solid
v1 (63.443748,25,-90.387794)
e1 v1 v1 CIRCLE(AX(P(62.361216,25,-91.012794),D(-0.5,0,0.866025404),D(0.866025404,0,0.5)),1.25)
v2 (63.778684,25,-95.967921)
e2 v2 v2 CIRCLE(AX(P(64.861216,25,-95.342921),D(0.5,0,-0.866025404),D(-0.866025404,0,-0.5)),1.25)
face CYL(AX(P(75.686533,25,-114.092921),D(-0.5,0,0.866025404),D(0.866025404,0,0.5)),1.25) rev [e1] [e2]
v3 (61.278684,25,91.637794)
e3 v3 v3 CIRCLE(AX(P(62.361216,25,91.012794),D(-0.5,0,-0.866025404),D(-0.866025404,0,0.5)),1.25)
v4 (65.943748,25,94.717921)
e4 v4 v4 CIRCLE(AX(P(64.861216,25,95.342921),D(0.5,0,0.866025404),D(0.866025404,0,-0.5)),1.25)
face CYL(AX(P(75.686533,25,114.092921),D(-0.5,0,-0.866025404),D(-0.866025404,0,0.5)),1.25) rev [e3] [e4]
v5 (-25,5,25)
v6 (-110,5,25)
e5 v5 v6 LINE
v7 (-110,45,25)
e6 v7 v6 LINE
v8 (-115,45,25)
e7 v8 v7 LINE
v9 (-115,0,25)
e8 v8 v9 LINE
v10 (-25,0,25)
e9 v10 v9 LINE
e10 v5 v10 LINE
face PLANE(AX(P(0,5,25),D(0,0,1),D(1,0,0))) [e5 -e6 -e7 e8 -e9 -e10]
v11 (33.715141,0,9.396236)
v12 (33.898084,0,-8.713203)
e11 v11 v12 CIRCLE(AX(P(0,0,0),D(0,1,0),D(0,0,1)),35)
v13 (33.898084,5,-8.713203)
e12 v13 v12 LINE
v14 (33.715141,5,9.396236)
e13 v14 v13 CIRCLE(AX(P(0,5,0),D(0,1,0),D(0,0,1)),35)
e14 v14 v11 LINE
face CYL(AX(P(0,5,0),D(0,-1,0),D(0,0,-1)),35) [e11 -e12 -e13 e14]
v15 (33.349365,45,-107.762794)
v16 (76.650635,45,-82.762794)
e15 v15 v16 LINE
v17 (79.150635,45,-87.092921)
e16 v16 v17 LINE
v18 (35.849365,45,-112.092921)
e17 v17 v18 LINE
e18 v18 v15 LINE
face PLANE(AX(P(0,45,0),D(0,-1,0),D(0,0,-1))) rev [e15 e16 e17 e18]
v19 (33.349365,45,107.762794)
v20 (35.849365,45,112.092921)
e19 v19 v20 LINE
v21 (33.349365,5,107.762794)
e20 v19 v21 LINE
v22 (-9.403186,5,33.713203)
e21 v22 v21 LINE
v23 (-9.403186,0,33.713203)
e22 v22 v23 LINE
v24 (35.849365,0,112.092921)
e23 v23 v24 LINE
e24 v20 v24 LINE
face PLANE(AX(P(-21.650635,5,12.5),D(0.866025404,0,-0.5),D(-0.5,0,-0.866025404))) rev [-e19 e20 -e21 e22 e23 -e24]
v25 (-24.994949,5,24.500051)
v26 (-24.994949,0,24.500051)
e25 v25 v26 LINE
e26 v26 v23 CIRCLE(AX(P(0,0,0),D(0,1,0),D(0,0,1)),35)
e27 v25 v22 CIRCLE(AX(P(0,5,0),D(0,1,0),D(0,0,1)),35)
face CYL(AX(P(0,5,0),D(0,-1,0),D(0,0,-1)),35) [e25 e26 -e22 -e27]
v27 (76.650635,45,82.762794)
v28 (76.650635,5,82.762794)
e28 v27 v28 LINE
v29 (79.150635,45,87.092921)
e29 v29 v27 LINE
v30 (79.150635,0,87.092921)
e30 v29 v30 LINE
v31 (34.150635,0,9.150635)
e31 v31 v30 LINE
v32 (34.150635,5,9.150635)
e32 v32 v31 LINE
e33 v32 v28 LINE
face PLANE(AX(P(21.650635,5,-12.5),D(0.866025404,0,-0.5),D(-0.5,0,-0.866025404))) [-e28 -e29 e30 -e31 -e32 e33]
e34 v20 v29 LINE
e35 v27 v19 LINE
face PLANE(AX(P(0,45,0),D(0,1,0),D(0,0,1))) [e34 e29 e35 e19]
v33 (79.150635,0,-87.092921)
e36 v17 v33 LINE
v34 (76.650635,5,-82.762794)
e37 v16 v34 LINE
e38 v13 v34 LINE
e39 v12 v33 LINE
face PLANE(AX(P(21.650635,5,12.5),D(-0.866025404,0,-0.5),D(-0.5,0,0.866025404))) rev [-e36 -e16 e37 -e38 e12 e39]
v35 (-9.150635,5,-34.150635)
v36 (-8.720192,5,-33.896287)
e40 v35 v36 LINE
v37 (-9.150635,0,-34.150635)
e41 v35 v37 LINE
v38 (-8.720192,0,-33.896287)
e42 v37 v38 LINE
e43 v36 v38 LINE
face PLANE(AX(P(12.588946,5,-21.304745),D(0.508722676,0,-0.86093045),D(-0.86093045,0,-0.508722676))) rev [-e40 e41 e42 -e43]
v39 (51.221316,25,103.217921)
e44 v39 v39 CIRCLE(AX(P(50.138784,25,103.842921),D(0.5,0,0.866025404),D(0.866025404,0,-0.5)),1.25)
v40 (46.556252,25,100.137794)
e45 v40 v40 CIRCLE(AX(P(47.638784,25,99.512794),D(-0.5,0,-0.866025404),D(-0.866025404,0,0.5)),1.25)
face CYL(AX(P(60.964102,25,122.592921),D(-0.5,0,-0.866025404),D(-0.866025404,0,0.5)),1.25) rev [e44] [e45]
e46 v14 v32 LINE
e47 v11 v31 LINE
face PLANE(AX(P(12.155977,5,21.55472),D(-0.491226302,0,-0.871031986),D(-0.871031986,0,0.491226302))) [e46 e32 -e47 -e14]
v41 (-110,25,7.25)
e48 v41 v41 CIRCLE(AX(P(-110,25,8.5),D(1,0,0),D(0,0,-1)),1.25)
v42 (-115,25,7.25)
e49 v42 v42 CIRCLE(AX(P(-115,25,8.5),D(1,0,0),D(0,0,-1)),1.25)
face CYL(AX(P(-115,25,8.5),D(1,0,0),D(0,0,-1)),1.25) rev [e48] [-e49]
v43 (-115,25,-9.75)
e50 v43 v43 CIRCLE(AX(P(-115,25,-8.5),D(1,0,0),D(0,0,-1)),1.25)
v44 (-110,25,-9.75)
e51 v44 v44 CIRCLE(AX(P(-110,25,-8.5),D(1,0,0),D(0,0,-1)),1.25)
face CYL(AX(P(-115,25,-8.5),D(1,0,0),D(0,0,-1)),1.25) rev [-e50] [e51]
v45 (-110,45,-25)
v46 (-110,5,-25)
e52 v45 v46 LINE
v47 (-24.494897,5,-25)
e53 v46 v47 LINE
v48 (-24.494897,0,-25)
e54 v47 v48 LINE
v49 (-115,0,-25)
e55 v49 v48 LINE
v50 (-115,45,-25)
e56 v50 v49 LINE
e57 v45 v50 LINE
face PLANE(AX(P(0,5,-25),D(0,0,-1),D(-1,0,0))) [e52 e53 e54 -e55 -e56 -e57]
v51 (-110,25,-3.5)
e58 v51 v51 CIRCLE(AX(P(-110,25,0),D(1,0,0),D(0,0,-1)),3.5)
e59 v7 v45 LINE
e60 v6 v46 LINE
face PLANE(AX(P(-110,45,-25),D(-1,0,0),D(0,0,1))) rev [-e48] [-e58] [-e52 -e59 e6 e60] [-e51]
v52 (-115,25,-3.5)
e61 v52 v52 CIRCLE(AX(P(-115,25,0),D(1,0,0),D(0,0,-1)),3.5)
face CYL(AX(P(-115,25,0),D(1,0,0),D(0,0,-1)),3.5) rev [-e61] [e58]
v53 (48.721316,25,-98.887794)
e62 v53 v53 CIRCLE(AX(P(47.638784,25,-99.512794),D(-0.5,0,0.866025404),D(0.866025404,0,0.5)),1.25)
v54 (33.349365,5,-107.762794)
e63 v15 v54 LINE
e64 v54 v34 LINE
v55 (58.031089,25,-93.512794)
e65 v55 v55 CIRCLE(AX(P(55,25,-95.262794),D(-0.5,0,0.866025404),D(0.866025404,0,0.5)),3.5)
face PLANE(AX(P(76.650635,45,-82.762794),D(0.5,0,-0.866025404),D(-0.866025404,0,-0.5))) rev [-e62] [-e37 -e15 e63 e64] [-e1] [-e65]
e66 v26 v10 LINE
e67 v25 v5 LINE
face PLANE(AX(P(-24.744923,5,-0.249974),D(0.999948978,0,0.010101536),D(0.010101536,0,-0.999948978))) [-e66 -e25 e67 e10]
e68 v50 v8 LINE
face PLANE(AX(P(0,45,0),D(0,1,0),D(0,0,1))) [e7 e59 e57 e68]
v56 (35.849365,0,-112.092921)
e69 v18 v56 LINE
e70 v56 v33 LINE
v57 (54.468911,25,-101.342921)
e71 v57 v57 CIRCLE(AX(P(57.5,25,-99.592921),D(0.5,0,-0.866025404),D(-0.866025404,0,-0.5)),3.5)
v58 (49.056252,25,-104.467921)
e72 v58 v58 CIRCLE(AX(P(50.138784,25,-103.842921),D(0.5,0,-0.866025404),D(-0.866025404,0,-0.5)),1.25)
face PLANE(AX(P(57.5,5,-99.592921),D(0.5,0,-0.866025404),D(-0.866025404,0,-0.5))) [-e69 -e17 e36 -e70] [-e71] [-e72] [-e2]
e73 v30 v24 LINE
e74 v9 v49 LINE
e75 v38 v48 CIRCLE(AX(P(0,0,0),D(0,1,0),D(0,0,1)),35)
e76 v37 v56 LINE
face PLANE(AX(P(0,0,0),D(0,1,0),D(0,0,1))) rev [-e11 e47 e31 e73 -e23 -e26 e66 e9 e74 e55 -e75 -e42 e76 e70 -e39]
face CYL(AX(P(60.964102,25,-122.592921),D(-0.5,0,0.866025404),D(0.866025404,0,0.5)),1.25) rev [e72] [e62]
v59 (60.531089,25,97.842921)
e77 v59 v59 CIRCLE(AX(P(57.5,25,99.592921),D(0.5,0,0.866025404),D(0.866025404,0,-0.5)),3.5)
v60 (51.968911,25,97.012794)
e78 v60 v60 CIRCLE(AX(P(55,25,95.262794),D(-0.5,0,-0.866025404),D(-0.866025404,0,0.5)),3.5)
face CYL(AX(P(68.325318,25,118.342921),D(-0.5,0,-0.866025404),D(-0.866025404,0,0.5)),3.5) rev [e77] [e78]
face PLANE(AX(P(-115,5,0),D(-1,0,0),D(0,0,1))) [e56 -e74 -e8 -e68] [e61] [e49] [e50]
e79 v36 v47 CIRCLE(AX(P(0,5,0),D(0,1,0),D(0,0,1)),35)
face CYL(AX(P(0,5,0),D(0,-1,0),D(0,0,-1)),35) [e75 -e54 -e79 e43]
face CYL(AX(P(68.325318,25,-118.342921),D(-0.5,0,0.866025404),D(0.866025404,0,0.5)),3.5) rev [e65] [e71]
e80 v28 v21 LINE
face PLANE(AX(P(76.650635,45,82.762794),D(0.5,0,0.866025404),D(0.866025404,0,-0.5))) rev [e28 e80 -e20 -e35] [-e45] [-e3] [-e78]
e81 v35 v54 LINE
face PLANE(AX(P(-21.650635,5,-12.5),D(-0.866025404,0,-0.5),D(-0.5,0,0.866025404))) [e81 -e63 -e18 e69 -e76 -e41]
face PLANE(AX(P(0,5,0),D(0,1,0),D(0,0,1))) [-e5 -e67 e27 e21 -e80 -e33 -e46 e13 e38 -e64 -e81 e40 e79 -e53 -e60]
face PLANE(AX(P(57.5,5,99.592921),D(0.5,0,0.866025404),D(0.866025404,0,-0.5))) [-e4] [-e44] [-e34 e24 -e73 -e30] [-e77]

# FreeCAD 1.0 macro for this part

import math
import FreeCAD as App
import Part
import Sketcher
from FreeCAD import Vector
Q = App.Units.Quantity


def add_polygon(sketch, points):
    """Adds a closed chain of lines whose ends are joined by coincident constraints."""
    first, n = sketch.GeometryCount, len(points)
    for a, b in zip(points, points[1:] + points[:1]):
        sketch.addGeometry(Part.LineSegment(App.Vector(*a, 0), App.Vector(*b, 0)), False)
    for i in range(n):
        sketch.addConstraint(Sketcher.Constraint("Coincident", first + i, 2, first + (i + 1) % n, 1))

doc = App.newDocument("Part")
body = doc.addObject("PartDesign::Body", "Body")

# Sketch on XZ plane
sketch1 = doc.addObject("Sketcher::SketchObject", "Sketch")
body.addObject(sketch1)
sketch1.AttachmentSupport = (doc.XZ_Plane, [""])
sketch1.MapMode = "FlatFace"
sketch1.addGeometry(Part.LineSegment(Vector(-115, -25, 0), Vector(-115, 25, 0)), False)
sketch1.addGeometry(Part.LineSegment(Vector(-115, 25, 0), Vector(-25, 25, 0)), False)
sketch1.addGeometry(Part.LineSegment(Vector(-25, 25, 0), Vector(-24.99, 24.5, 0)), False)
sketch1.addGeometry(Part.ArcOfCircle(Part.Circle(Vector(0, 0, 0), Vector(0, 0, 1), 35), math.radians(106), math.radians(136)), False)
sketch1.addGeometry(Part.LineSegment(Vector(-9.4, 33.71, 0), Vector(35.85, 112.09, 0)), False)
sketch1.addGeometry(Part.LineSegment(Vector(35.85, 112.09, 0), Vector(79.15, 87.09, 0)), False)
sketch1.addGeometry(Part.LineSegment(Vector(79.15, 87.09, 0), Vector(34.15, 9.15, 0)), False)
sketch1.addGeometry(Part.LineSegment(Vector(34.15, 9.15, 0), Vector(33.72, 9.4, 0)), False)
sketch1.addGeometry(Part.ArcOfCircle(Part.Circle(Vector(0, 0, 0), Vector(0, 0, 1), 35), math.radians(0), math.radians(15.57)), False)
sketch1.addGeometry(Part.ArcOfCircle(Part.Circle(Vector(0, 0, 0), Vector(0, 0, 1), 35), math.radians(-14.42), math.radians(0)), False)
sketch1.addGeometry(Part.LineSegment(Vector(33.9, -8.71, 0), Vector(79.15, -87.09, 0)), False)
sketch1.addGeometry(Part.LineSegment(Vector(79.15, -87.09, 0), Vector(35.85, -112.09, 0)), False)
sketch1.addGeometry(Part.LineSegment(Vector(35.85, -112.09, 0), Vector(-9.15, -34.15, 0)), False)
sketch1.addGeometry(Part.LineSegment(Vector(-9.15, -34.15, 0), Vector(-8.72, -33.9, 0)), False)
sketch1.addGeometry(Part.ArcOfCircle(Part.Circle(Vector(0, 0, 0), Vector(0, 0, 1), 35), math.radians(-134), math.radians(-104)), False)
sketch1.addGeometry(Part.LineSegment(Vector(-24.49, -25, 0), Vector(-115, -25, 0)), False)
sketch1.addConstraint(Sketcher.Constraint("Coincident", 0, 2, 1, 1))
sketch1.addConstraint(Sketcher.Constraint("Coincident", 1, 2, 2, 1))
sketch1.addConstraint(Sketcher.Constraint("Coincident", 2, 2, 3, 2))
sketch1.addConstraint(Sketcher.Constraint("Coincident", 3, 1, 4, 1))
sketch1.addConstraint(Sketcher.Constraint("Coincident", 4, 2, 5, 1))
sketch1.addConstraint(Sketcher.Constraint("Coincident", 5, 2, 6, 1))
sketch1.addConstraint(Sketcher.Constraint("Coincident", 6, 2, 7, 1))
sketch1.addConstraint(Sketcher.Constraint("Coincident", 7, 2, 8, 2))
sketch1.addConstraint(Sketcher.Constraint("Tangent", 8, 1, 9, 2))
sketch1.addConstraint(Sketcher.Constraint("Coincident", 9, 1, 10, 1))
sketch1.addConstraint(Sketcher.Constraint("Coincident", 10, 2, 11, 1))
sketch1.addConstraint(Sketcher.Constraint("Coincident", 11, 2, 12, 1))
sketch1.addConstraint(Sketcher.Constraint("Coincident", 12, 2, 13, 1))
sketch1.addConstraint(Sketcher.Constraint("Coincident", 13, 2, 14, 2))
sketch1.addConstraint(Sketcher.Constraint("Coincident", 14, 1, 15, 1))
sketch1.addConstraint(Sketcher.Constraint("Coincident", 15, 2, 0, 1))
sketch1.addConstraint(Sketcher.Constraint("Vertical", 0))
sketch1.addConstraint(Sketcher.Constraint("Horizontal", 1))
sketch1.addConstraint(Sketcher.Constraint("Horizontal", 15))
sketch1.addConstraint(Sketcher.Constraint("Coincident", 3, 3, -1, 1))
sketch1.addConstraint(Sketcher.Constraint("Coincident", 8, 3, -1, 1))
sketch1.addConstraint(Sketcher.Constraint("Coincident", 14, 3, -1, 1))
sketch1.addConstraint(Sketcher.Constraint("Equal", 3, 8))
sketch1.addConstraint(Sketcher.Constraint("Equal", 8, 9))
sketch1.addConstraint(Sketcher.Constraint("Equal", 9, 14))
sketch1.addConstraint(Sketcher.Constraint("Symmetric", 5, 2, 10, 2, -1))
sketch1.addConstraint(Sketcher.Constraint("Symmetric", 4, 2, 11, 2, -1))
sketch1.addConstraint(Sketcher.Constraint("PointOnObject", 8, 1, -1))
sketch1.addConstraint(Sketcher.Constraint("Perpendicular", 4, 5))
sketch1.addConstraint(Sketcher.Constraint("Perpendicular", 5, 6))
sketch1.addConstraint(Sketcher.Constraint("Perpendicular", 10, 11))
sketch1.addConstraint(Sketcher.Constraint("Perpendicular", 11, 12))
sketch1.addConstraint(Sketcher.Constraint("Equal", 2, 7))
sketch1.addConstraint(Sketcher.Constraint("Equal", 4, 10))
sketch1.addConstraint(Sketcher.Constraint("Equal", 6, 12))
sketch1.addConstraint(Sketcher.Constraint("Equal", 7, 13))
sketch1.addConstraint(Sketcher.Constraint("Radius", 3, 35.0))
sketch1.addConstraint(Sketcher.Constraint("DistanceX", 1, 1, 1, 2, 90.0))
sketch1.addConstraint(Sketcher.Constraint("DistanceY", 0, 1, 0, 2, 50.0))
sketch1.addConstraint(Sketcher.Constraint("Angle", 4, Q("60 deg")))
sketch1.addConstraint(Sketcher.Constraint("Distance", 5, 50.0))
sketch1.addConstraint(Sketcher.Constraint("Distance", 6, 90.0))
sketch1.addConstraint(Sketcher.Constraint("DistanceX", 0, 2, -1, 1, 115.0))
sketch1.addConstraint(Sketcher.Constraint("DistanceY", -1, 1, 0, 2, 25.0))
sketch1.addConstraint(Sketcher.Constraint("DistanceY", 6, 2, 7, 2, 0.245601))
sketch1.addConstraint(Sketcher.Constraint("DistanceX", 2, 2, -1, 1, 24.994949))
pad1 = doc.addObject("PartDesign::Pad", "Pad")
body.addObject(pad1)
pad1.Profile = sketch1
pad1.Length = 5
pad1.Reversed = True

# Sketch on XZ plane
sketch2 = doc.addObject("Sketcher::SketchObject", "Sketch001")
body.addObject(sketch2)
sketch2.AttachmentSupport = (doc.XZ_Plane, [""])
sketch2.MapMode = "FlatFace"
sketch2.AttachmentOffset = App.Placement(Vector(0, 0, -5), App.Rotation())
add_polygon(sketch2, [(-115, -25), (-115, 25), (-110, 25), (-110, -25)])  # lines 0-3
add_polygon(sketch2, [(79, -87), (36, -112), (33, -108), (77, -83)])  # lines 4-7
add_polygon(sketch2, [(79, 87), (77, 83), (33, 108), (36, 112)])  # lines 8-11
sketch2.addConstraint(Sketcher.Constraint("Vertical", 0))
sketch2.addConstraint(Sketcher.Constraint("Horizontal", 1))
sketch2.addConstraint(Sketcher.Constraint("Vertical", 2))
sketch2.addConstraint(Sketcher.Constraint("Horizontal", 3))
sketch2.addConstraint(Sketcher.Constraint("Symmetric", 6, 2, 8, 2, -1))
sketch2.addConstraint(Sketcher.Constraint("Symmetric", 5, 2, 9, 2, -1))
sketch2.addConstraint(Sketcher.Constraint("Symmetric", 4, 2, 10, 2, -1))
sketch2.addConstraint(Sketcher.Constraint("Symmetric", 7, 2, 11, 2, -1))
sketch2.addConstraint(Sketcher.Constraint("Perpendicular", 4, 5))
sketch2.addConstraint(Sketcher.Constraint("Perpendicular", 5, 6))
sketch2.addConstraint(Sketcher.Constraint("Perpendicular", 6, 7))
sketch2.addConstraint(Sketcher.Constraint("DistanceX", 1, 1, 1, 2, 5.0))
sketch2.addConstraint(Sketcher.Constraint("DistanceY", 0, 1, 0, 2, 50.0))
sketch2.addConstraint(Sketcher.Constraint("Angle", 4, Q("-150 deg")))
sketch2.addConstraint(Sketcher.Constraint("Distance", 4, 50.0))
sketch2.addConstraint(Sketcher.Constraint("Distance", 5, 5.0))
sketch2.addConstraint(Sketcher.Constraint("DistanceX", 0, 2, -1, 1, 115.0))
sketch2.addConstraint(Sketcher.Constraint("DistanceY", -1, 1, 0, 2, 25.0))
sketch2.addConstraint(Sketcher.Constraint("DistanceY", 4, 2, -1, 1, 112.092921))
sketch2.addConstraint(Sketcher.Constraint("DistanceX", -1, 1, 4, 2, 35.849365))
pad2 = doc.addObject("PartDesign::Pad", "Pad001")
body.addObject(pad2)
pad2.Profile = sketch2
pad2.Length = 40
pad2.Reversed = True

# Sketch on YZ plane
sketch3 = doc.addObject("Sketcher::SketchObject", "Sketch002")
body.addObject(sketch3)
sketch3.AttachmentSupport = (doc.YZ_Plane, [""])
sketch3.MapMode = "FlatFace"
sketch3.AttachmentOffset = App.Placement(Vector(0, 0, -110), App.Rotation())
sketch3.addGeometry(Part.Circle(Vector(25, 0, 0), Vector(0, 0, 1), 3.5), False)
sketch3.addGeometry(Part.Circle(Vector(25, 8.5, 0), Vector(0, 0, 1), 1.2), False)
sketch3.addGeometry(Part.Circle(Vector(25, -8.5, 0), Vector(0, 0, 1), 1.2), False)
sketch3.addConstraint(Sketcher.Constraint("Equal", 1, 2))
sketch3.addConstraint(Sketcher.Constraint("Symmetric", 1, 3, 2, 3, -1))
sketch3.addConstraint(Sketcher.Constraint("PointOnObject", 0, 3, -1))
sketch3.addConstraint(Sketcher.Constraint("Vertical", 0, 3, 1, 3))
sketch3.addConstraint(Sketcher.Constraint("Diameter", 0, 7.0))
sketch3.addConstraint(Sketcher.Constraint("Diameter", 1, 2.5))
sketch3.addConstraint(Sketcher.Constraint("DistanceX", -1, 1, 0, 3, 25.0))
sketch3.addConstraint(Sketcher.Constraint("DistanceY", 2, 3, 1, 3, 17.0))
pocket1 = doc.addObject("PartDesign::Pocket", "Pocket")
body.addObject(pocket1)
pocket1.Profile = sketch3
pocket1.Type = "ThroughAll"

# Sketch on an angled plane
sketch4 = doc.addObject("Sketcher::SketchObject", "Sketch003")
body.addObject(sketch4)
sketch4.Placement = App.Placement(Vector(55, 0, 95.262794), App.Rotation(Vector(-0.866025404, 0, 0.5), Vector(0, 1, 0), Vector(-0.5, 0, -0.866025404), "ZXY"))
sketch4.addGeometry(Part.Circle(Vector(0, 25, 0), Vector(0, 0, 1), 3.5), False)
sketch4.addGeometry(Part.Circle(Vector(-8.5, 25, 0), Vector(0, 0, 1), 1.2), False)
sketch4.addGeometry(Part.Circle(Vector(8.5, 25, 0), Vector(0, 0, 1), 1.2), False)
sketch4.addConstraint(Sketcher.Constraint("Equal", 1, 2))
sketch4.addConstraint(Sketcher.Constraint("Symmetric", 1, 3, 2, 3, -2))
sketch4.addConstraint(Sketcher.Constraint("PointOnObject", 0, 3, -2))
sketch4.addConstraint(Sketcher.Constraint("Horizontal", 0, 3, 1, 3))
sketch4.addConstraint(Sketcher.Constraint("Diameter", 0, 7.0))
sketch4.addConstraint(Sketcher.Constraint("Diameter", 1, 2.5))
sketch4.addConstraint(Sketcher.Constraint("DistanceY", -1, 1, 0, 3, 25.0))
sketch4.addConstraint(Sketcher.Constraint("DistanceX", 1, 3, 2, 3, 17.0))
pocket2 = doc.addObject("PartDesign::Pocket", "Pocket001")
body.addObject(pocket2)
pocket2.Profile = sketch4
pocket2.Type = "ThroughAll"

# Sketch on an angled plane
sketch5 = doc.addObject("Sketcher::SketchObject", "Sketch004")
body.addObject(sketch5)
sketch5.Placement = App.Placement(Vector(55, 0, -95.262794), App.Rotation(Vector(0.866025404, 0, 0.5), Vector(0, 1, 0), Vector(-0.5, 0, 0.866025404), "ZXY"))
sketch5.addGeometry(Part.Circle(Vector(0, 25, 0), Vector(0, 0, 1), 3.5), False)
sketch5.addGeometry(Part.Circle(Vector(8.5, 25, 0), Vector(0, 0, 1), 1.2), False)
sketch5.addGeometry(Part.Circle(Vector(-8.5, 25, 0), Vector(0, 0, 1), 1.2), False)
sketch5.addConstraint(Sketcher.Constraint("Equal", 1, 2))
sketch5.addConstraint(Sketcher.Constraint("Symmetric", 1, 3, 2, 3, -2))
sketch5.addConstraint(Sketcher.Constraint("PointOnObject", 0, 3, -2))
sketch5.addConstraint(Sketcher.Constraint("Horizontal", 0, 3, 1, 3))
sketch5.addConstraint(Sketcher.Constraint("Diameter", 0, 7.0))
sketch5.addConstraint(Sketcher.Constraint("Diameter", 1, 2.5))
sketch5.addConstraint(Sketcher.Constraint("DistanceY", -1, 1, 0, 3, 25.0))
sketch5.addConstraint(Sketcher.Constraint("DistanceX", 2, 3, 1, 3, 17.0))
pocket3 = doc.addObject("PartDesign::Pocket", "Pocket002")
body.addObject(pocket3)
pocket3.Profile = sketch5
pocket3.Type = "ThroughAll"

doc.recompute()
